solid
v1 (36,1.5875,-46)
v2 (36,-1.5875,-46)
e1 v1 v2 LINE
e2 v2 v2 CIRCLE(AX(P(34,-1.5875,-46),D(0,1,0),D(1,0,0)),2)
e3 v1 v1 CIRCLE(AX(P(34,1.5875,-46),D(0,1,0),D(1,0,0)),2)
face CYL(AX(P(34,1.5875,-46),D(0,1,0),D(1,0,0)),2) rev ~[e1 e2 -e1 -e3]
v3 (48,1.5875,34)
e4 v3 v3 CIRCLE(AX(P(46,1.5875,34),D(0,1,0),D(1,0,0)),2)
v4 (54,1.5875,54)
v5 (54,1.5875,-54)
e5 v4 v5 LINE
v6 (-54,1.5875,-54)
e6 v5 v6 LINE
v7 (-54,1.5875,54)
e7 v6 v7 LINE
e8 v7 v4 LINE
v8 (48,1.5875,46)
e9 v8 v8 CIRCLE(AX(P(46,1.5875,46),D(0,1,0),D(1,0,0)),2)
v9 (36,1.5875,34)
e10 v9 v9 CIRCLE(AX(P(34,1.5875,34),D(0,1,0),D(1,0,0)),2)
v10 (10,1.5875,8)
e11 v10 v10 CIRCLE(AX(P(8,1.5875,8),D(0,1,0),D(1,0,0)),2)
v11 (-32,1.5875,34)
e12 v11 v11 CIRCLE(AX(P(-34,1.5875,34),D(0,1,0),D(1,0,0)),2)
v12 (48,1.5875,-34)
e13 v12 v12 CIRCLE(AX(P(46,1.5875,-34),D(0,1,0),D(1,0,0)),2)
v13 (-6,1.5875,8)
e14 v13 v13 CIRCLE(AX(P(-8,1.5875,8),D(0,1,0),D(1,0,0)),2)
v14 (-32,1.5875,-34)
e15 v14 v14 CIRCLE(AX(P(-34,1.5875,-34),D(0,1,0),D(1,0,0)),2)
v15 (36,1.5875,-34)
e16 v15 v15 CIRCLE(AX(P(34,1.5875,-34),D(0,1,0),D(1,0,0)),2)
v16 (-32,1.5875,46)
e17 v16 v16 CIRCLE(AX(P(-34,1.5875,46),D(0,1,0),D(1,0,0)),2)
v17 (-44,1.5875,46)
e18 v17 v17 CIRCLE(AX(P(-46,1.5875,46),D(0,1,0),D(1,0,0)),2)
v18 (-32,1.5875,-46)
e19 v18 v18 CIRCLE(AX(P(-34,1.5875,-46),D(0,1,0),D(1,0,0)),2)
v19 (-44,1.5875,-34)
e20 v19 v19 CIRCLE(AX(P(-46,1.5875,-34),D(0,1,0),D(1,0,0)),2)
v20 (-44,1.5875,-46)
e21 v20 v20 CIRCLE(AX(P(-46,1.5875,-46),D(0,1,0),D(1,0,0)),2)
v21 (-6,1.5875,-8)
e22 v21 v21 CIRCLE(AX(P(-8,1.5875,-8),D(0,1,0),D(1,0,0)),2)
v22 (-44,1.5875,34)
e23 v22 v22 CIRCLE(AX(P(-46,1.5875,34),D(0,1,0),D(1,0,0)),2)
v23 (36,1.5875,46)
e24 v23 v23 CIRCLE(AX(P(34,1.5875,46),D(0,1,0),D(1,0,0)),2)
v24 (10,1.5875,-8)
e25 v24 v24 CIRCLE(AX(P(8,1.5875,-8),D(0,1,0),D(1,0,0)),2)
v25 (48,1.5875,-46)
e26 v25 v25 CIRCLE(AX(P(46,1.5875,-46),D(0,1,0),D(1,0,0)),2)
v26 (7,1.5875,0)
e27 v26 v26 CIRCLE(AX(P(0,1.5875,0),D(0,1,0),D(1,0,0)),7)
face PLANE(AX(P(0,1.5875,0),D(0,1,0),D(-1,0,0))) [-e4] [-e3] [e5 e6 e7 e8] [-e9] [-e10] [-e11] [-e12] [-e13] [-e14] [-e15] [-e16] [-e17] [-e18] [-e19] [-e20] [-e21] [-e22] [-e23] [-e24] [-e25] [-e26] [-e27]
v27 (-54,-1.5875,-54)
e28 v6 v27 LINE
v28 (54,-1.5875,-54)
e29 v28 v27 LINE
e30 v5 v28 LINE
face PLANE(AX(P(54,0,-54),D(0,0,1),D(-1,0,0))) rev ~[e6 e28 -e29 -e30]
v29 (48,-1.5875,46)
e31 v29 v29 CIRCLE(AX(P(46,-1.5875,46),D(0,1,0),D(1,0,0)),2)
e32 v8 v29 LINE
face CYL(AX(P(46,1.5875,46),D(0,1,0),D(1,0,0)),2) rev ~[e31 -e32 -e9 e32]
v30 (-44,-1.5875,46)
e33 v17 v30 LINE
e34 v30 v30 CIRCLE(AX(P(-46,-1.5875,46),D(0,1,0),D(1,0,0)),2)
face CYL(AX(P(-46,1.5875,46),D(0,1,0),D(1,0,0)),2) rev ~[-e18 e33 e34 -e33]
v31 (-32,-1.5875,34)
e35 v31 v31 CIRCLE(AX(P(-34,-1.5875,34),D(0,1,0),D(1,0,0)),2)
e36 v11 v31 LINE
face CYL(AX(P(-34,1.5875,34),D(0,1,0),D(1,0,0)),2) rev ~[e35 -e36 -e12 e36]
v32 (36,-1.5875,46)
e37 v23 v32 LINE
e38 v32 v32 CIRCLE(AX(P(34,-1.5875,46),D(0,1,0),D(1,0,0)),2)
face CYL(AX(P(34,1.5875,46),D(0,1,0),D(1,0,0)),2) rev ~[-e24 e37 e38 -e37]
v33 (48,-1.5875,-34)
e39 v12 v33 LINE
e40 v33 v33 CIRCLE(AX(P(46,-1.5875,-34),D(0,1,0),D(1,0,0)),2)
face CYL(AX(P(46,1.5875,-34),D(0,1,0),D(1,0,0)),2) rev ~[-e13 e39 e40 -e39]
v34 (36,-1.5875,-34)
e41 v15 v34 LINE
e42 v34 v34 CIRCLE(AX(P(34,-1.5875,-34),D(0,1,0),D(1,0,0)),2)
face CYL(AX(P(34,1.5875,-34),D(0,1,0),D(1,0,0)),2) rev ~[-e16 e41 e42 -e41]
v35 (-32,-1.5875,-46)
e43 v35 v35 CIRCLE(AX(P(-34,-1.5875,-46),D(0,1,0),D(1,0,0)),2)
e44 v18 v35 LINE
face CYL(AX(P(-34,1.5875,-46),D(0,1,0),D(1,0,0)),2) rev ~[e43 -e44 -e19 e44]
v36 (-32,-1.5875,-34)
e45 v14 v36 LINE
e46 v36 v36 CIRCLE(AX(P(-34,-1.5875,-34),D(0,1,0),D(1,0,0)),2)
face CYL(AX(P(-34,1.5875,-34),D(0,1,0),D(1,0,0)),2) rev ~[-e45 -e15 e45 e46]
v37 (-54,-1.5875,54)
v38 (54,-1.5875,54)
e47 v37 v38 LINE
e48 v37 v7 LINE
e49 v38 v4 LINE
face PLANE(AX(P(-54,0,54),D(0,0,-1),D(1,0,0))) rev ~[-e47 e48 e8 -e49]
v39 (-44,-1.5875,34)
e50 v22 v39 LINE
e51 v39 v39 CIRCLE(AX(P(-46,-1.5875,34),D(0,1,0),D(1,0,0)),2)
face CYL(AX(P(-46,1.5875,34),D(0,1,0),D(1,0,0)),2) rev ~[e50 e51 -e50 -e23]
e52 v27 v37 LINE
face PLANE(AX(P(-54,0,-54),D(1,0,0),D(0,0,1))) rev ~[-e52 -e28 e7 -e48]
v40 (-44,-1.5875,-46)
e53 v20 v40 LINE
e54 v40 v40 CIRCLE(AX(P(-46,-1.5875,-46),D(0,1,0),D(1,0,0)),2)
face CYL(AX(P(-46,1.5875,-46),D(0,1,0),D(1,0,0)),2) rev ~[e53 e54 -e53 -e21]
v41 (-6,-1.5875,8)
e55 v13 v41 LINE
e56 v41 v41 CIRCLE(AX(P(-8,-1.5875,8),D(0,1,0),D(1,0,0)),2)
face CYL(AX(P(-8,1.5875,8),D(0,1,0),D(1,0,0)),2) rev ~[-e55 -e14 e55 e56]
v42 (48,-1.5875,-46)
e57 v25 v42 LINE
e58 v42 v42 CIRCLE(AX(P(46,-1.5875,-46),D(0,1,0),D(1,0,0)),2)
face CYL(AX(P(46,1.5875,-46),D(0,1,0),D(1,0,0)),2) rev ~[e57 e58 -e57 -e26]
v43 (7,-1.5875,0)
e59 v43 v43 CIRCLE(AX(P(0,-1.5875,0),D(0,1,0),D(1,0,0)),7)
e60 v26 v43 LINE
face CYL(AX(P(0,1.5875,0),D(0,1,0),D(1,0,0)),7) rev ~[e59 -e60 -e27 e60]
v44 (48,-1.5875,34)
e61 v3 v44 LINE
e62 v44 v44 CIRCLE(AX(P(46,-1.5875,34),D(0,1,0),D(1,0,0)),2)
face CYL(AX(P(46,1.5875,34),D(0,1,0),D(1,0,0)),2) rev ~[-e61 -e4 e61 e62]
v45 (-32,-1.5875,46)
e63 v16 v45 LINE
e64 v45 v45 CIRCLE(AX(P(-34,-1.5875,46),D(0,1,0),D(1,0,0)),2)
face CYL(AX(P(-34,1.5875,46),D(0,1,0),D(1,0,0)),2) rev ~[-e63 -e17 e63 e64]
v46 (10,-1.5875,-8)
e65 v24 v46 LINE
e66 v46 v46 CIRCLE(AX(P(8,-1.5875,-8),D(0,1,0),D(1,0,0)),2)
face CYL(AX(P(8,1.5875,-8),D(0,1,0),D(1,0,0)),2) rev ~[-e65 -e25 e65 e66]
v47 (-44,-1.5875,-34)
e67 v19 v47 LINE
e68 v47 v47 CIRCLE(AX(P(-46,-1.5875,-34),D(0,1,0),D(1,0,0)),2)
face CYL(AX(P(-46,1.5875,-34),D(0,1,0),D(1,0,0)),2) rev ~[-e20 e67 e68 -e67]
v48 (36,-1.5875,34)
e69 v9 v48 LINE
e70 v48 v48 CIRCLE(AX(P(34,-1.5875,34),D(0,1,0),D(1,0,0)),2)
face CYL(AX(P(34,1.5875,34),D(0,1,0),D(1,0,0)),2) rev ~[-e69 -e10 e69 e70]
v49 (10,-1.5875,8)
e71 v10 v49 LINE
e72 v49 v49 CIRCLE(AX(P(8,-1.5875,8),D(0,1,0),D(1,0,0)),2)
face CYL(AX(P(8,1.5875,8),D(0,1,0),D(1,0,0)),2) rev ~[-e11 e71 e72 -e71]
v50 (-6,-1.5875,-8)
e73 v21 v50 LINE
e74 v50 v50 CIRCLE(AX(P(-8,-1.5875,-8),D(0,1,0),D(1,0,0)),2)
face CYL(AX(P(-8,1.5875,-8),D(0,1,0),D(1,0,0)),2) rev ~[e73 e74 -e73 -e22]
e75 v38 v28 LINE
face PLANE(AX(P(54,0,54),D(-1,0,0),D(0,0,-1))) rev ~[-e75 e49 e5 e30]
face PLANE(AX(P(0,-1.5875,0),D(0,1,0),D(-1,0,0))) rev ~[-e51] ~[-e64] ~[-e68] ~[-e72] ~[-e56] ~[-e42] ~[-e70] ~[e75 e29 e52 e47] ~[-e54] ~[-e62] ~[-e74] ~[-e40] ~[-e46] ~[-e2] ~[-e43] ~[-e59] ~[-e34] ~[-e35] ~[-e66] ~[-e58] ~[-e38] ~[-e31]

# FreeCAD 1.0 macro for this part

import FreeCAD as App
import Part
import Sketcher
from FreeCAD import Vector


def add_polygon(sketch, points):
    """Adds a closed chain of lines whose ends are joined by coincident constraints."""
    first, n = sketch.GeometryCount, len(points)
    for a, b in zip(points, points[1:] + points[:1]):
        sketch.addGeometry(Part.LineSegment(App.Vector(*a, 0), App.Vector(*b, 0)), False)
    for i in range(n):
        sketch.addConstraint(Sketcher.Constraint("Coincident", first + i, 2, first + (i + 1) % n, 1))

doc = App.newDocument("Part")
body = doc.addObject("PartDesign::Body", "Body")

sketch1 = body.newObject("Sketcher::SketchObject", "Sketch")
sketch1.AttachmentSupport = (doc.getObject("XZ_Plane"), [""])
sketch1.MapMode = "FlatFace"
add_polygon(sketch1, [(-54, -54), (-54, 54), (54, 54), (54, -54)])
sketch1.addConstraint([
    Sketcher.Constraint("Vertical", 0),
    Sketcher.Constraint("Horizontal", 1),
    Sketcher.Constraint("Vertical", 2),
    Sketcher.Constraint("Horizontal", 3),
    Sketcher.Constraint("Symmetric", 0, 2, 2, 2, -1, 1),
    Sketcher.Constraint("Equal", 3, 0),
    Sketcher.Constraint("DistanceX", 1, 1, 1, 2, 108.0),
])
pad1 = body.newObject("PartDesign::Pad", "Pad")
pad1.Profile = sketch1
pad1.Length = 3.175
pad1.Midplane = True

sketch2 = body.newObject("Sketcher::SketchObject", "Sketch001")
sketch2.AttachmentSupport = (doc.getObject("XZ_Plane"), [""])
sketch2.MapMode = "FlatFace"
sketch2.AttachmentOffset = App.Placement(Vector(0, 0, -1.5875), App.Rotation())
sketch2.addGeometry([
    Part.Circle(Vector(-46, 46, 0), Vector(0, 0, 1), 2),
    Part.Circle(Vector(-34, 46, 0), Vector(0, 0, 1), 2),
    Part.Circle(Vector(-34, 34, 0), Vector(0, 0, 1), 2),
    Part.Circle(Vector(-46, 34, 0), Vector(0, 0, 1), 2),
    Part.Circle(Vector(34, 46, 0), Vector(0, 0, 1), 2),
    Part.Circle(Vector(34, 34, 0), Vector(0, 0, 1), 2),
    Part.Circle(Vector(46, 34, 0), Vector(0, 0, 1), 2),
    Part.Circle(Vector(46, 46, 0), Vector(0, 0, 1), 2),
    Part.Circle(Vector(46, -34, 0), Vector(0, 0, 1), 2),
    Part.Circle(Vector(34, -34, 0), Vector(0, 0, 1), 2),
    Part.Circle(Vector(34, -46, 0), Vector(0, 0, 1), 2),
    Part.Circle(Vector(46, -46, 0), Vector(0, 0, 1), 2),
    Part.Circle(Vector(-34, -46, 0), Vector(0, 0, 1), 2),
    Part.Circle(Vector(-34, -34, 0), Vector(0, 0, 1), 2),
    Part.Circle(Vector(-46, -34, 0), Vector(0, 0, 1), 2),
    Part.Circle(Vector(-46, -46, 0), Vector(0, 0, 1), 2),
], False)
sketch2.addConstraint([
    Sketcher.Constraint("Equal", 0, 1),
    Sketcher.Constraint("Equal", 1, 2),
    Sketcher.Constraint("Equal", 2, 3),
    Sketcher.Constraint("Equal", 3, 4),
    Sketcher.Constraint("Equal", 4, 5),
    Sketcher.Constraint("Equal", 5, 6),
    Sketcher.Constraint("Equal", 6, 7),
    Sketcher.Constraint("Equal", 7, 8),
    Sketcher.Constraint("Equal", 8, 9),
    Sketcher.Constraint("Equal", 9, 10),
    Sketcher.Constraint("Equal", 10, 11),
    Sketcher.Constraint("Equal", 11, 12),
    Sketcher.Constraint("Equal", 12, 13),
    Sketcher.Constraint("Equal", 13, 14),
    Sketcher.Constraint("Equal", 14, 15),
    Sketcher.Constraint("Symmetric", 3, 3, 8, 3, -1, 1),
    Sketcher.Constraint("Symmetric", 2, 3, 9, 3, -1, 1),
    Sketcher.Constraint("Symmetric", 1, 3, 10, 3, -1, 1),
    Sketcher.Constraint("Symmetric", 0, 3, 11, 3, -1, 1),
    Sketcher.Constraint("Symmetric", 4, 3, 12, 3, -1, 1),
    Sketcher.Constraint("Symmetric", 5, 3, 13, 3, -1, 1),
    Sketcher.Constraint("Symmetric", 6, 3, 14, 3, -1, 1),
    Sketcher.Constraint("Symmetric", 7, 3, 15, 3, -1, 1),
    Sketcher.Constraint("Symmetric", 1, 3, 4, 3, -2),
    Sketcher.Constraint("Symmetric", 2, 3, 5, 3, -2),
    Sketcher.Constraint("Symmetric", 3, 3, 6, 3, -2),
    Sketcher.Constraint("Symmetric", 0, 3, 7, 3, -2),
    Sketcher.Constraint("Horizontal", 0, 3, 1, 3),
    Sketcher.Constraint("Horizontal", 2, 3, 3, 3),
    Sketcher.Constraint("Vertical", 1, 3, 2, 3),
    Sketcher.Constraint("Vertical", 0, 3, 3, 3),
    Sketcher.Constraint("Diameter", 0, 4.0),
    Sketcher.Constraint("DistanceX", 0, 3, -1, 1, 46.0),
    Sketcher.Constraint("DistanceY", -1, 1, 0, 3, 46.0),
    Sketcher.Constraint("DistanceX", 1, 3, -1, 1, 34.0),
    Sketcher.Constraint("DistanceY", -1, 1, 2, 3, 34.0),
])
pocket1 = body.newObject("PartDesign::Pocket", "Pocket")
pocket1.Profile = sketch2
pocket1.Type = "ThroughAll"
pocket1.Reversed = True

sketch3 = body.newObject("Sketcher::SketchObject", "Sketch002")
sketch3.AttachmentSupport = (doc.getObject("XZ_Plane"), [""])
sketch3.MapMode = "FlatFace"
sketch3.AttachmentOffset = App.Placement(Vector(0, 0, -1.5875), App.Rotation())
sketch3.addGeometry([
    Part.Circle(Vector(0, 0, 0), Vector(0, 0, 1), 7),
    Part.Circle(Vector(-8, -8, 0), Vector(0, 0, 1), 2),
    Part.Circle(Vector(-8, 8, 0), Vector(0, 0, 1), 2),
    Part.Circle(Vector(8, 8, 0), Vector(0, 0, 1), 2),
    Part.Circle(Vector(8, -8, 0), Vector(0, 0, 1), 2),
], False)
sketch3.addConstraint([
    Sketcher.Constraint("Coincident", 0, 3, -1, 1),
    Sketcher.Constraint("Equal", 1, 2),
    Sketcher.Constraint("Equal", 2, 3),
    Sketcher.Constraint("Equal", 3, 4),
    Sketcher.Constraint("Symmetric", 1, 3, 3, 3, -1, 1),
    Sketcher.Constraint("Symmetric", 2, 3, 4, 3, -1, 1),
    Sketcher.Constraint("Symmetric", 2, 3, 3, 3, -2),
    Sketcher.Constraint("Diameter", 0, 14.0),
    Sketcher.Constraint("Diameter", 1, 4.0),
    Sketcher.Constraint("DistanceX", 1, 3, -1, 1, 8.0),
    Sketcher.Constraint("DistanceY", 1, 3, -1, 1, 8.0),
])
pocket2 = body.newObject("PartDesign::Pocket", "Pocket001")
pocket2.Profile = sketch3
pocket2.Type = "ThroughAll"
pocket2.Reversed = True

doc.recompute()
